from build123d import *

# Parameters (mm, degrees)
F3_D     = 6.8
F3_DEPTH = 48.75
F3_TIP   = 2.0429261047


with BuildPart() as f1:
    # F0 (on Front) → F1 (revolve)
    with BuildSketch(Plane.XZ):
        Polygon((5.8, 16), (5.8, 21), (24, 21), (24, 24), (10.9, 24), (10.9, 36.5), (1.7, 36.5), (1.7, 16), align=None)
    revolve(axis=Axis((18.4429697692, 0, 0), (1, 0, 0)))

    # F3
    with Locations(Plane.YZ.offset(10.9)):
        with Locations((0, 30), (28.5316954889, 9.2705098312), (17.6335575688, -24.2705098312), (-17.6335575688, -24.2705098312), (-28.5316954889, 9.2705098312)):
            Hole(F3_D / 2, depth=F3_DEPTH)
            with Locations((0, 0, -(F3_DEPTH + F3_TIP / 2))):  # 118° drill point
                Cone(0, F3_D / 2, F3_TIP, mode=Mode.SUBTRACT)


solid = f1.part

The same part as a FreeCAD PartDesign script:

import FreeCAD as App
import Part
import Sketcher
Q = App.Units.Quantity


def add_polygon(sketch, points):
    """Adds a closed chain of lines whose ends are joined by coincident constraints."""
    first, n = sketch.GeometryCount, len(points)
    for a, b in zip(points, points[1:] + points[:1]):
        sketch.addGeometry(Part.LineSegment(App.Vector(*a, 0), App.Vector(*b, 0)), False)
    for i in range(n):
        sketch.addConstraint(Sketcher.Constraint("Coincident", first + i, 2, first + (i + 1) % n, 1))

doc = App.newDocument("Part")
params = doc.addObject("Spreadsheet::Sheet", "Params")
for row, (alias, value) in enumerate([
    ("sketch1_height", "5 mm"),
    ("sketch1_height2", "3 mm"),
    ("sketch1_width", "18.2 mm"),
    ("sketch1_width2", "13.1 mm"),
    ("sketch1_width3", "9.2 mm"),
    ("revolution_angle", "360 deg"),
    ("sketch2_diameter", "6.8 mm"),
    ("hole_diameter", "6.8 mm"),
    ("hole_depth", "48.75 mm"),
], start=1):
    params.set(f"A{row}", alias)
    params.set(f"B{row}", "=" + value)
    params.setAlias(f"B{row}", alias)

body = doc.addObject("PartDesign::Body", "Body")

# Sketch on XZ plane
sketch1 = doc.addObject("Sketcher::SketchObject", "Sketch")
body.addObject(sketch1)
sketch1.AttachmentSupport = (doc.XZ_Plane, [""])
sketch1.MapMode = "FlatFace"
add_polygon(sketch1, [(5.8, 16), (5.8, 21), (24, 21), (24, 24), (10.9, 24), (10.9, 36.5), (1.7, 36.5), (1.7, 16)])  # lines 0-7
sketch1.addConstraint([
    Sketcher.Constraint("Vertical", 0),
    Sketcher.Constraint("Horizontal", 1),
    Sketcher.Constraint("Vertical", 2),
    Sketcher.Constraint("Horizontal", 3),
    Sketcher.Constraint("Vertical", 4),
    Sketcher.Constraint("Horizontal", 5),
    Sketcher.Constraint("Vertical", 6),
    Sketcher.Constraint("Horizontal", 7),
    Sketcher.Constraint("DistanceY", 0, 1, 0, 2, Q("5 mm")),
    Sketcher.Constraint("DistanceY", 2, 1, 2, 2, Q("3 mm")),
    Sketcher.Constraint("DistanceX", 1, 1, 1, 2, Q("18.2 mm")),
    Sketcher.Constraint("DistanceX", 3, 2, 3, 1, Q("13.1 mm")),
    Sketcher.Constraint("DistanceX", 5, 2, 5, 1, Q("9.2 mm")),
    Sketcher.Constraint("DistanceY", 4, 1, 4, 2, Q("12.5 mm")),
    Sketcher.Constraint("DistanceY", -1, 1, 0, 2, Q("21 mm")),
    Sketcher.Constraint("DistanceX", -1, 1, 1, 2, Q("24 mm")),
])
sketch1.setExpression("Constraints[16]", "Params.sketch1_height")
sketch1.setExpression("Constraints[17]", "Params.sketch1_height2")
sketch1.setExpression("Constraints[18]", "Params.sketch1_width")
sketch1.setExpression("Constraints[19]", "Params.sketch1_width2")
sketch1.setExpression("Constraints[20]", "Params.sketch1_width3")
revolution = doc.addObject("PartDesign::Revolution", "Revolution")
body.addObject(revolution)
revolution.Profile = sketch1
revolution.ReferenceAxis = (sketch1, ["H_Axis"])
revolution.setExpression("Angle", "Params.revolution_angle")

# Sketch on YZ plane
sketch2 = doc.addObject("Sketcher::SketchObject", "Sketch001")
body.addObject(sketch2)
sketch2.AttachmentSupport = (doc.YZ_Plane, [""])
sketch2.MapMode = "FlatFace"
sketch2.AttachmentOffset = App.Placement(App.Vector(0, 0, 10.9), App.Rotation())
sketch2.addGeometry([
    Part.Circle(App.Vector(0, 30, 0), App.Vector(0, 0, 1), 3.4),  # 0
    Part.Circle(App.Vector(28.5, 9.3, 0), App.Vector(0, 0, 1), 3.4),  # 1
    Part.Circle(App.Vector(17.6, -24.3, 0), App.Vector(0, 0, 1), 3.4),  # 2
    Part.Circle(App.Vector(-17.6, -24.3, 0), App.Vector(0, 0, 1), 3.4),  # 3
    Part.Circle(App.Vector(-28.5, 9.3, 0), App.Vector(0, 0, 1), 3.4),  # 4
], False)
sketch2.addConstraint([
    Sketcher.Constraint("Equal", 0, 1),
    Sketcher.Constraint("Equal", 1, 2),
    Sketcher.Constraint("Equal", 2, 3),
    Sketcher.Constraint("Equal", 3, 4),
    Sketcher.Constraint("Symmetric", 2, 3, 3, 3, -2),
    Sketcher.Constraint("Symmetric", 1, 3, 4, 3, -2),
    Sketcher.Constraint("PointOnObject", 0, 3, -2),
    Sketcher.Constraint("Diameter", 0, Q("6.8 mm")),
    Sketcher.Constraint("DistanceY", -1, 1, 0, 3, Q("30 mm")),
    Sketcher.Constraint("DistanceY", -1, 1, 1, 3, Q("9.27051 mm")),
    Sketcher.Constraint("DistanceY", 2, 3, -1, 1, Q("24.27051 mm")),
    Sketcher.Constraint("DistanceX", 4, 3, 1, 3, Q("57.063391 mm")),
    Sketcher.Constraint("DistanceX", -1, 1, 2, 3, Q("17.633558 mm")),
])
sketch2.setExpression("Constraints[7]", "Params.sketch2_diameter")
doc.recompute()
hole = doc.addObject("PartDesign::Hole", "Hole")
body.addObject(hole)
hole.Profile = sketch2
hole.ThreadType = "None"
hole.setExpression("Diameter", "Params.hole_diameter")
hole.DepthType = "Dimension"
hole.setExpression("Depth", "Params.hole_depth")
hole.DrillPoint = "Angled"
hole.DrillPointAngle = 118

doc.recompute()
